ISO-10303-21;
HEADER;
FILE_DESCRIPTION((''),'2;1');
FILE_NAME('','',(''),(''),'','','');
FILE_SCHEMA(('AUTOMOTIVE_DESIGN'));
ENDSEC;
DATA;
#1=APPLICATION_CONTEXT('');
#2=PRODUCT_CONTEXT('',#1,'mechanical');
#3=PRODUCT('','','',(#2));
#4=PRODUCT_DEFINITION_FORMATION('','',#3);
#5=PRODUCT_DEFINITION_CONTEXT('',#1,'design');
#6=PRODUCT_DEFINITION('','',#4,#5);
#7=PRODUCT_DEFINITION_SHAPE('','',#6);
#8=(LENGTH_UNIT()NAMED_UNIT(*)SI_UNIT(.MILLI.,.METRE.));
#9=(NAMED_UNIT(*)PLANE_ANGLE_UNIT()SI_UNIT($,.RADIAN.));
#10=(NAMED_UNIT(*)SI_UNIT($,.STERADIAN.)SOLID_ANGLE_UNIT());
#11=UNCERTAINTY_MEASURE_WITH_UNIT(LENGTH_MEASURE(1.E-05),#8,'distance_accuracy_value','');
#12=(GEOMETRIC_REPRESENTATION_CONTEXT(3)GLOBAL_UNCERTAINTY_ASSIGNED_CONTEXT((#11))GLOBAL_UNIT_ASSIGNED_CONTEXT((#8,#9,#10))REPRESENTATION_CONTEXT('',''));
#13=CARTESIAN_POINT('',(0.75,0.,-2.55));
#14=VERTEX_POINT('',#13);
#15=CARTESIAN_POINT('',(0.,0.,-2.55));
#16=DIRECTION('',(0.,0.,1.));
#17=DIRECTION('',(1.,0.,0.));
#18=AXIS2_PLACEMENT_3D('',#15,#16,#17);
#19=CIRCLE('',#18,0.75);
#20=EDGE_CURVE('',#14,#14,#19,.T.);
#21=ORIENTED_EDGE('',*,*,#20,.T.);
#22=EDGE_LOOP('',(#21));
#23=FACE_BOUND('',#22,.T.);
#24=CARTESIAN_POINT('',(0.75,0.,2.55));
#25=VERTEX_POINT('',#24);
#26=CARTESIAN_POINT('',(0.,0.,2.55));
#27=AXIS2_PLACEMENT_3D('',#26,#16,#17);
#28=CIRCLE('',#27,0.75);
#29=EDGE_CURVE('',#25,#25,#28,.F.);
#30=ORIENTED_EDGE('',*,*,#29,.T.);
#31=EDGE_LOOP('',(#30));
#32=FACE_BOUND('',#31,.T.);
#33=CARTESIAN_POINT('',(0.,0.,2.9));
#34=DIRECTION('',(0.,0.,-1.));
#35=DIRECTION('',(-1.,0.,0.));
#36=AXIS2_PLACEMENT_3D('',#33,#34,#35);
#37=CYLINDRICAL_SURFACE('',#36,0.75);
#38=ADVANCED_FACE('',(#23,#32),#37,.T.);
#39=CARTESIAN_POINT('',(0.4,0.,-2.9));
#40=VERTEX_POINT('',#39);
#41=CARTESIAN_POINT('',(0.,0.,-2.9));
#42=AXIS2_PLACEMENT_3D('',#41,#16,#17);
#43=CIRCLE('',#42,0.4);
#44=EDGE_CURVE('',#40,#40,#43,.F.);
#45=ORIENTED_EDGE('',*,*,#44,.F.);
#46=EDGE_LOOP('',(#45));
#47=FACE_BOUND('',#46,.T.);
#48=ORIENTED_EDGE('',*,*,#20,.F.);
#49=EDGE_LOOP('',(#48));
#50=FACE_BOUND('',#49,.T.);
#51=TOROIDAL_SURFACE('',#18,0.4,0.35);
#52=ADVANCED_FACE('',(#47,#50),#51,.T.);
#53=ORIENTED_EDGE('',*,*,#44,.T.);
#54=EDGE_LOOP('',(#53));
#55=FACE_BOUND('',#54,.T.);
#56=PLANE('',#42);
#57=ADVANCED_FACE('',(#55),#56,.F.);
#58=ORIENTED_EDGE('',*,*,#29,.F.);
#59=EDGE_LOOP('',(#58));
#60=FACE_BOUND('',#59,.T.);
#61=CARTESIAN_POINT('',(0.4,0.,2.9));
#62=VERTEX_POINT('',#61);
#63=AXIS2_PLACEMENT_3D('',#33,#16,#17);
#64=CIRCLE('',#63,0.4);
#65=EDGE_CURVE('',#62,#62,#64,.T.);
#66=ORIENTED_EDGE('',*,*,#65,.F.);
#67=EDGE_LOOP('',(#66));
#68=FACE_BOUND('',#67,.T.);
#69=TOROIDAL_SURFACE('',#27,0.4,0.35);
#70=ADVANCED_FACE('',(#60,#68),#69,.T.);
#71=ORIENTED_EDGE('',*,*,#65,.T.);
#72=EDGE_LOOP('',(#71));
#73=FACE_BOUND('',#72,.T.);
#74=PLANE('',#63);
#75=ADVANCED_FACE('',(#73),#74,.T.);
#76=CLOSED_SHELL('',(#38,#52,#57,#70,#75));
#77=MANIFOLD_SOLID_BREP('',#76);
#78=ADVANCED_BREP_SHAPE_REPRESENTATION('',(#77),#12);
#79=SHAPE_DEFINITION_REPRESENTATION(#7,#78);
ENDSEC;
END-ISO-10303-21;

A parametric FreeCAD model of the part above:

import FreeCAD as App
import Part
import Sketcher

V = App.Vector


def edges_at(feature, points):
    """Names of the edges that pass closest to the given points."""
    edges = feature.Shape.Edges
    near = lambda p: min(range(len(edges)), key=lambda i: edges[i].distToShape(Part.Vertex(*p))[0])
    return sorted({f"Edge{near(p) + 1}" for p in points})

doc = App.newDocument("Part")
params = doc.addObject("Spreadsheet::Sheet", "Params")
for row, (alias, value) in enumerate([
    ("sketch1_diameter", "1.5 mm"),
    ("pad1_length", "5.8 mm"),
    ("fillet_radius", "0.35 mm"),
], start=1):
    params.set(f"A{row}", alias)
    params.set(f"B{row}", "=" + value)
    params.setAlias(f"B{row}", alias)

body = doc.addObject("PartDesign::Body", "Body")

sketch1 = doc.addObject("Sketcher::SketchObject", "Sketch")
body.addObject(sketch1)
sketch1.AttachmentSupport = (doc.XY_Plane, [""])
sketch1.MapMode = "FlatFace"
sketch1.addGeometry(Part.Circle(V(0, 0, 0), V(0, 0, 1), 0.75), False)
sketch1.addConstraint(Sketcher.Constraint("Coincident", 0, 3, -1, 1))
sketch1.addConstraint(Sketcher.Constraint("Diameter", 0, 1.5))
sketch1.setExpression("Constraints[1]", "Params.sketch1_diameter")
pad1 = doc.addObject("PartDesign::Pad", "Pad")
body.addObject(pad1)
pad1.Profile = sketch1
pad1.setExpression("Length", "Params.pad1_length")
pad1.Midplane = True
doc.recompute()

fillet = doc.addObject("PartDesign::Fillet", "Fillet")
body.addObject(fillet)
fillet.Base = (pad1, edges_at(pad1, [(-0.75, 0, -2.9), (-0.75, 0, 2.9)]))
fillet.setExpression("Radius", "Params.fillet_radius")

doc.recompute()
